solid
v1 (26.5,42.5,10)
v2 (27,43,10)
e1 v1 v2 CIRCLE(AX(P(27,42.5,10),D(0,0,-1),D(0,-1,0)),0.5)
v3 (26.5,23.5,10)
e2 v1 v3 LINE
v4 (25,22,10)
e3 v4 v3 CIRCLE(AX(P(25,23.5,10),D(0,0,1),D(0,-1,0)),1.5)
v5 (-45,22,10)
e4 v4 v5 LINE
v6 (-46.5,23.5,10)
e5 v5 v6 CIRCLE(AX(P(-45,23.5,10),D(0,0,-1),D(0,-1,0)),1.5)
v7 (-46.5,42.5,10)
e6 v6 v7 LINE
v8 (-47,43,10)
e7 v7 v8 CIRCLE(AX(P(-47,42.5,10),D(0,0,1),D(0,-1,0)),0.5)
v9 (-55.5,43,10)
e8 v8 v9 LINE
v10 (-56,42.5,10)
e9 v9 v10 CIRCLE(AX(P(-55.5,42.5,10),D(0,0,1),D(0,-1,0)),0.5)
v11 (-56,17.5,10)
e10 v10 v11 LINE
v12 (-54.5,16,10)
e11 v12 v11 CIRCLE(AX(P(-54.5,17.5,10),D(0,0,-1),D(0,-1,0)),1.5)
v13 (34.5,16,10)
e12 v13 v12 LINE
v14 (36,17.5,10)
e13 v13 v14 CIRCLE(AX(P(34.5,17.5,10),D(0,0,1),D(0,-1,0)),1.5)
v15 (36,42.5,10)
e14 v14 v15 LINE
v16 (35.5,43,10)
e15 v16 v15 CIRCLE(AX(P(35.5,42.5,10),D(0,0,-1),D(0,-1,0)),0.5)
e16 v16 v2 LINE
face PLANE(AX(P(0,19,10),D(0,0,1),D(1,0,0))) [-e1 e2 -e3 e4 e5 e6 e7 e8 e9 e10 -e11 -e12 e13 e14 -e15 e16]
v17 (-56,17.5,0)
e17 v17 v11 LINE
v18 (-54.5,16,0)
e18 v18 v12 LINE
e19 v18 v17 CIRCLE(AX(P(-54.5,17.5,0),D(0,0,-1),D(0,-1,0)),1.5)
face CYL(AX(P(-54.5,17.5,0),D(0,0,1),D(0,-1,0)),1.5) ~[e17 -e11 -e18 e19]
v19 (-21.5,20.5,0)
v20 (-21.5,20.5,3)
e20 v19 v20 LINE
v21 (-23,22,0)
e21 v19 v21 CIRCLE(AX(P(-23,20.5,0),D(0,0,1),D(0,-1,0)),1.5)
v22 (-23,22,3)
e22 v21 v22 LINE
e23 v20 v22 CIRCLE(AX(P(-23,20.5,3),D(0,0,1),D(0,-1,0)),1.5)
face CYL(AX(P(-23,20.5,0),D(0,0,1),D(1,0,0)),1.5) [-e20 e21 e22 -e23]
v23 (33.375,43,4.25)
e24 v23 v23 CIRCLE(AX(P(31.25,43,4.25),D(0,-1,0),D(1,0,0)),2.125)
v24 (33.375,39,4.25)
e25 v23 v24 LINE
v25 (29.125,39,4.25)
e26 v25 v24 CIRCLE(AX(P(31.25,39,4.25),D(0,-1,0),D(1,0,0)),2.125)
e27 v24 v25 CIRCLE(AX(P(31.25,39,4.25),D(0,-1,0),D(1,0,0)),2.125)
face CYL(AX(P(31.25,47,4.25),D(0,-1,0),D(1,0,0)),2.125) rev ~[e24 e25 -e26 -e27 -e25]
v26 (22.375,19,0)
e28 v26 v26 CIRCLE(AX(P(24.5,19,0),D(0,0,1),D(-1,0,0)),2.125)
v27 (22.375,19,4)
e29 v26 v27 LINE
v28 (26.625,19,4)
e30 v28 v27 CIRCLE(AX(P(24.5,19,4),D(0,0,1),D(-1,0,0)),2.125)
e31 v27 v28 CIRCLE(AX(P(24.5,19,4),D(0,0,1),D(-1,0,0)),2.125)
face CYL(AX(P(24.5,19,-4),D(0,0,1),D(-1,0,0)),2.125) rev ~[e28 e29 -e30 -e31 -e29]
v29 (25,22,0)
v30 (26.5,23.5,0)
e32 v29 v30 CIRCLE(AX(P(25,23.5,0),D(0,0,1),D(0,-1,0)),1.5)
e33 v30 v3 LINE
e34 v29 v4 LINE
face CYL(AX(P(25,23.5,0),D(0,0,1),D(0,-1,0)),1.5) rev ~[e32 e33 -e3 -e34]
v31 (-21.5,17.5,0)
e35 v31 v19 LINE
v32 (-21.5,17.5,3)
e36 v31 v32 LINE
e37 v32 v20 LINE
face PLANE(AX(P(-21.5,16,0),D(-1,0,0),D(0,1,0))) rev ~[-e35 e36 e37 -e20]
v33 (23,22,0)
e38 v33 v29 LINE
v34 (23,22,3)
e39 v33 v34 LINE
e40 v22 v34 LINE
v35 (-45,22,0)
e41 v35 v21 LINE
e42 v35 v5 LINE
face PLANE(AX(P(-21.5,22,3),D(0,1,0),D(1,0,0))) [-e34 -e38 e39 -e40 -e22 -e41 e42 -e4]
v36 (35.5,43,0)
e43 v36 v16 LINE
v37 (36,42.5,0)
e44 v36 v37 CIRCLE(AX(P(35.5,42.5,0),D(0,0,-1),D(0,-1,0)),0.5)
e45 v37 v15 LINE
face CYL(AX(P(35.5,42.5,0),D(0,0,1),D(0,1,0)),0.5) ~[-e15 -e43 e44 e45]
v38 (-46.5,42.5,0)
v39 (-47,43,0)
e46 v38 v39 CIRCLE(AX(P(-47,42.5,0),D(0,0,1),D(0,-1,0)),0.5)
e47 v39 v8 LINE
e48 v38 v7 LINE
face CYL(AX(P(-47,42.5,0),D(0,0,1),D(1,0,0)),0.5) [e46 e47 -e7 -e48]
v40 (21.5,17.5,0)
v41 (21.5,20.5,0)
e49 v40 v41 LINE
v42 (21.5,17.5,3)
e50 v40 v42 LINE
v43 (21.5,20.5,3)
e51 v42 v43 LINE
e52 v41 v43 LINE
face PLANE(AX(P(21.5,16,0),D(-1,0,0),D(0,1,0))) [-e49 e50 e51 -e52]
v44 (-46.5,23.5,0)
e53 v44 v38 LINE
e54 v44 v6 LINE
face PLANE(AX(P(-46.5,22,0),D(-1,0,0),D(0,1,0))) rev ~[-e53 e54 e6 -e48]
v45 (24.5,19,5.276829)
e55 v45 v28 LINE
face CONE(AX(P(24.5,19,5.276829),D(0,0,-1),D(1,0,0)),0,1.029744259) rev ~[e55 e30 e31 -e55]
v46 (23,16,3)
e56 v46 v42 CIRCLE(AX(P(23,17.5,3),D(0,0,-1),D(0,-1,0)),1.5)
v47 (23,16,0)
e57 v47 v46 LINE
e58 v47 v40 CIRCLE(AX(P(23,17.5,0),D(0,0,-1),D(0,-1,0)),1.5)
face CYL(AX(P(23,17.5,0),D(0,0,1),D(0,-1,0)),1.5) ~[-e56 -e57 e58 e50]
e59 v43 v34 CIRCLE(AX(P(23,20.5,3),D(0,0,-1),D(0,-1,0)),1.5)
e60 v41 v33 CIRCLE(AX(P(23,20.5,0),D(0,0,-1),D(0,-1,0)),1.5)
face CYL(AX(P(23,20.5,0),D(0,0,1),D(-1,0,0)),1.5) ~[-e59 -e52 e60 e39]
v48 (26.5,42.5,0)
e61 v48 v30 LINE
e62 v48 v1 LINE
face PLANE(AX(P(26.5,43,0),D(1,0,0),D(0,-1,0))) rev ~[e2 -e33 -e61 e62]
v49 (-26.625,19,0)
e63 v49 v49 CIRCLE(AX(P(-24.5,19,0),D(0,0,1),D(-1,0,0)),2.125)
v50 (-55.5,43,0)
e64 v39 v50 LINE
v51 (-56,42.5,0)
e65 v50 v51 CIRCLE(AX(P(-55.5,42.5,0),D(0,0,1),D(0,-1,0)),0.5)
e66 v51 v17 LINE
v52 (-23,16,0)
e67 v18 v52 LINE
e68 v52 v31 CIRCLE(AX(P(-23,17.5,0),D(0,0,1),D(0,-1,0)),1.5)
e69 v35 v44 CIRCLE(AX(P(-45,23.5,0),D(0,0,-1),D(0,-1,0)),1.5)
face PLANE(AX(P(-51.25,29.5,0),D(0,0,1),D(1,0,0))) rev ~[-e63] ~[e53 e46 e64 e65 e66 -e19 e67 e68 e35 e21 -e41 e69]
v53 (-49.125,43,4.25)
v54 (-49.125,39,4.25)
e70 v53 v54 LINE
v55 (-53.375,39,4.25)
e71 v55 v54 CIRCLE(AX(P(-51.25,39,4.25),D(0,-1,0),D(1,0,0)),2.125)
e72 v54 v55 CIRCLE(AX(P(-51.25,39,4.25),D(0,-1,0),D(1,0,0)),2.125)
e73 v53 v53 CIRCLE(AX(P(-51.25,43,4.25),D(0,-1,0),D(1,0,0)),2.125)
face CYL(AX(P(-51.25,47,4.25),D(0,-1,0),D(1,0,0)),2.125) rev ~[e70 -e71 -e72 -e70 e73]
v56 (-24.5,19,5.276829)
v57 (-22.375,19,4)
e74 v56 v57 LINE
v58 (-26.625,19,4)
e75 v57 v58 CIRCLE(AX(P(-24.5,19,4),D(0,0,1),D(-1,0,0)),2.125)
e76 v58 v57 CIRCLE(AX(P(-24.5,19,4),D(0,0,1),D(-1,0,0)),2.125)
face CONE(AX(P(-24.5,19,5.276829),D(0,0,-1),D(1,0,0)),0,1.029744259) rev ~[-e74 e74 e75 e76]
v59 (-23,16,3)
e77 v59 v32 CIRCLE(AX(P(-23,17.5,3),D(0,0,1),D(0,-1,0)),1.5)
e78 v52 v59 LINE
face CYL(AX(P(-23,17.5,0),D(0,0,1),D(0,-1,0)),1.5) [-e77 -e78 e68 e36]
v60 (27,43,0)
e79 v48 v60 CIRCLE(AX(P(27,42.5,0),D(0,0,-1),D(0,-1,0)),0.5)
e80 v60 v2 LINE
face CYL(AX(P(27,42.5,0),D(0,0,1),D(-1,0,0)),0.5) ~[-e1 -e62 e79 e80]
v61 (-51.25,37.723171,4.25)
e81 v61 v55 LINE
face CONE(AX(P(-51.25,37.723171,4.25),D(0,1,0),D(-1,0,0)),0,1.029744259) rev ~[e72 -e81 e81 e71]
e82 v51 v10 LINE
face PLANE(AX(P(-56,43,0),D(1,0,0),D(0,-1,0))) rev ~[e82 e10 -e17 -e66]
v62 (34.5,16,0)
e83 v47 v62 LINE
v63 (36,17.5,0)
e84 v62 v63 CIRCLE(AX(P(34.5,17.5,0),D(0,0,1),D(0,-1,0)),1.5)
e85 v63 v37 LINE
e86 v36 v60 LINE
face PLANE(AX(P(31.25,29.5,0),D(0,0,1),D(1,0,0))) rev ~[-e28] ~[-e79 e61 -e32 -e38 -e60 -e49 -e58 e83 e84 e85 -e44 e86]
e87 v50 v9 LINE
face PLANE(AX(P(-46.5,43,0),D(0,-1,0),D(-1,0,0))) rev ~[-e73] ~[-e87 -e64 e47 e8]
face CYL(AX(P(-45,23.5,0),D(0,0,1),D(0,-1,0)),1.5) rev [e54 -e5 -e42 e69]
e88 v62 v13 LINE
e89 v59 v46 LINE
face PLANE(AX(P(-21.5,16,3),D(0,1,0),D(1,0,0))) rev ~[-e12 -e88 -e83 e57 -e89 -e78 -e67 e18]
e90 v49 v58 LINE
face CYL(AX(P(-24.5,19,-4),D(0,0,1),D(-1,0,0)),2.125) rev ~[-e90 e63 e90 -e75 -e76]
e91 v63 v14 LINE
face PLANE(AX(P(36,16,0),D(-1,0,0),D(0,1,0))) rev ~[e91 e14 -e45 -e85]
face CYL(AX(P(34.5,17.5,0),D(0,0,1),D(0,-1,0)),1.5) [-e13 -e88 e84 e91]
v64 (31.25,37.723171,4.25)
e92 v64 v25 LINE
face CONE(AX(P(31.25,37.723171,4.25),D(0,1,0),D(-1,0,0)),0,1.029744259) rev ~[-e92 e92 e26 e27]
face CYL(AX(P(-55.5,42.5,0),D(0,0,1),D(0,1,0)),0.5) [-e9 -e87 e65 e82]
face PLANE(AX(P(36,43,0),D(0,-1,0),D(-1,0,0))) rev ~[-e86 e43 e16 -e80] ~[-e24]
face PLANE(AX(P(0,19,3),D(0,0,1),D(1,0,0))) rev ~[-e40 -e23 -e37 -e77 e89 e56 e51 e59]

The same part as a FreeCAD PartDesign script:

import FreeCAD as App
import Part
import Sketcher

V = App.Vector
Q = App.Units.Quantity


def edges_at(feature, points):
    """Names of the edges that pass closest to the given points."""
    edges = feature.Shape.Edges
    near = lambda p: min(range(len(edges)), key=lambda i: edges[i].distToShape(Part.Vertex(*p))[0])
    return sorted({f"Edge{near(p) + 1}" for p in points})


def add_polygon(sketch, points):
    """Adds a closed chain of lines whose ends are joined by coincident constraints."""
    first, n = sketch.GeometryCount, len(points)
    for a, b in zip(points, points[1:] + points[:1]):
        sketch.addGeometry(Part.LineSegment(App.Vector(*a, 0), App.Vector(*b, 0)), False)
    for i in range(n):
        sketch.addConstraint(Sketcher.Constraint("Coincident", first + i, 2, first + (i + 1) % n, 1))

doc = App.newDocument("Part")
body = doc.addObject("PartDesign::Body", "Body")

# Sketch on XY plane
sketch1 = body.newObject("Sketcher::SketchObject", "Sketch")
sketch1.AttachmentSupport = (doc.getObject("XY_Plane"), [""])
sketch1.MapMode = "FlatFace"
add_polygon(sketch1, [(36, 43), (26, 43), (26, 22), (22, 22), (22, 16), (36, 16)])  # lines 0-5
sketch1.addConstraint([
    Sketcher.Constraint("Horizontal", 0),
    Sketcher.Constraint("Vertical", 1),
    Sketcher.Constraint("Horizontal", 2),
    Sketcher.Constraint("Vertical", 3),
    Sketcher.Constraint("Horizontal", 4),
    Sketcher.Constraint("Vertical", 5),
    Sketcher.Constraint("DistanceX", 2, 2, 2, 1, Q("5 mm")),
    Sketcher.Constraint("DistanceY", 1, 2, 1, 1, Q("21 mm")),
    Sketcher.Constraint("DistanceY", 3, 2, 3, 1, Q("6 mm")),
    Sketcher.Constraint("DistanceX", 0, 2, 0, 1, Q("9.5 mm")),
    Sketcher.Constraint("DistanceY", -1, 1, 0, 2, Q("43 mm")),
    Sketcher.Constraint("DistanceX", -1, 1, 4, 2, Q("36 mm")),
])
pad1 = body.newObject("PartDesign::Pad", "Pad")
pad1.Profile = sketch1
pad1.Length = 10
body2 = doc.addObject("PartDesign::Body", "Body001")

# Sketch on XY plane
sketch2 = body2.newObject("Sketcher::SketchObject", "Sketch001")
sketch2.AttachmentSupport = (doc.getObject("XY_Plane001"), [""])
sketch2.MapMode = "FlatFace"
add_polygon(sketch2, [(-46, 22), (-46, 43), (-56, 43), (-56, 16), (-22, 16), (-22, 22)])  # lines 0-5
sketch2.addConstraint([
    Sketcher.Constraint("Vertical", 0),
    Sketcher.Constraint("Horizontal", 1),
    Sketcher.Constraint("Vertical", 2),
    Sketcher.Constraint("Horizontal", 3),
    Sketcher.Constraint("Vertical", 4),
    Sketcher.Constraint("Horizontal", 5),
    Sketcher.Constraint("DistanceX", 5, 2, 5, 1, Q("25 mm")),
    Sketcher.Constraint("DistanceY", 0, 1, 0, 2, Q("21 mm")),
    Sketcher.Constraint("DistanceY", 2, 2, 2, 1, Q("27 mm")),
    Sketcher.Constraint("DistanceX", 1, 2, 1, 1, Q("9.5 mm")),
    Sketcher.Constraint("DistanceY", -1, 1, 0, 2, Q("43 mm")),
    Sketcher.Constraint("DistanceX", 1, 2, -1, 1, Q("56 mm")),
])
pad2 = body2.newObject("PartDesign::Pad", "Pad001")
pad2.Profile = sketch2
pad2.Length = 10
body.AllowCompound = True
doc.recompute()

boolean = body.newObject("PartDesign::Boolean", "Boolean")
boolean.Type = "Fuse"
boolean.addObjects([body2])

# Sketch on XY plane
sketch3 = body.newObject("Sketcher::SketchObject", "Sketch002")
sketch3.AttachmentSupport = (doc.getObject("XY_Plane"), [""])
sketch3.MapMode = "FlatFace"
sketch3.AttachmentOffset = App.Placement(V(0, 0, 3), App.Rotation())
add_polygon(sketch3, [(-22, 22), (-22, 16), (22, 16), (22, 22)])  # lines 0-3
sketch3.addConstraint([
    Sketcher.Constraint("Vertical", 0),
    Sketcher.Constraint("Horizontal", 1),
    Sketcher.Constraint("Vertical", 2),
    Sketcher.Constraint("Horizontal", 3),
    Sketcher.Constraint("DistanceX", 1, 1, 1, 2, Q("43 mm")),
    Sketcher.Constraint("DistanceY", 0, 2, 0, 1, Q("6 mm")),
    Sketcher.Constraint("DistanceY", -1, 1, 0, 2, Q("16 mm")),
    Sketcher.Constraint("DistanceX", 0, 2, -1, 1, Q("21.5 mm")),
])
pad3 = body.newObject("PartDesign::Pad", "Pad002")
pad3.Profile = sketch3
pad3.Length = 7

# Sketch on XZ plane
sketch4 = body.newObject("Sketcher::SketchObject", "Sketch003")
sketch4.AttachmentSupport = (doc.getObject("XZ_Plane"), [""])
sketch4.MapMode = "FlatFace"
sketch4.AttachmentOffset = App.Placement(V(0, 0, -43), App.Rotation())
sketch4.addGeometry([
    Part.Circle(V(31.2, 4.2, 0), V(0, 0, 1), 2.1),
    Part.Circle(V(-51.2, 4.2, 0), V(0, 0, 1), 2.1),
], False)
sketch4.addConstraint([
    Sketcher.Constraint("Equal", 0, 1),
    Sketcher.Constraint("Horizontal", 0, 3, 1, 3),
    Sketcher.Constraint("Diameter", 0, Q("4.25 mm")),
    Sketcher.Constraint("DistanceX", 1, 3, 0, 3, Q("82.5 mm")),
    Sketcher.Constraint("DistanceX", -1, 1, 0, 3, Q("31.25 mm")),
    Sketcher.Constraint("DistanceY", -1, 1, 0, 3, Q("4.25 mm")),
])
doc.recompute()
hole = body.newObject("PartDesign::Hole", "Hole")
hole.Profile = sketch4
hole.ThreadType = "None"
hole.Diameter = 4.25
hole.DepthType = "Dimension"
hole.Depth = 4
hole.DrillPoint = "Angled"
hole.DrillPointAngle = 118
hole.Reversed = True

# Sketch on XY plane
sketch5 = body.newObject("Sketcher::SketchObject", "Sketch004")
sketch5.AttachmentSupport = (doc.getObject("XY_Plane"), [""])
sketch5.MapMode = "FlatFace"
sketch5.addGeometry([
    Part.Circle(V(24.5, 19, 0), V(0, 0, 1), 2.1),
    Part.Circle(V(-24.5, 19, 0), V(0, 0, 1), 2.1),
], False)
sketch5.addConstraint([
    Sketcher.Constraint("Equal", 0, 1),
    Sketcher.Constraint("Symmetric", 0, 3, 1, 3, -2),
    Sketcher.Constraint("Diameter", 0, Q("4.25 mm")),
    Sketcher.Constraint("DistanceY", -1, 1, 0, 3, Q("19 mm")),
    Sketcher.Constraint("DistanceX", 1, 3, 0, 3, Q("49 mm")),
])
doc.recompute()
hole2 = body.newObject("PartDesign::Hole", "Hole001")
hole2.Profile = sketch5
hole2.ThreadType = "None"
hole2.Diameter = 4.25
hole2.DepthType = "Dimension"
hole2.Depth = 4
hole2.DrillPoint = "Angled"
hole2.DrillPointAngle = 118
hole2.Reversed = True
doc.recompute()

fillet = body.newObject("PartDesign::Fillet", "Fillet")
fillet.Base = (hole2, edges_at(hole2, [
    (26.5, 22, 5),
    (-46.5, 22, 5),
    (36, 16, 5),
    (-56, 16, 5),
    (21.5, 22, 1.5),
    (21.5, 16, 1.5),
    (-21.5, 22, 1.5),
    (-21.5, 16, 1.5),
]))
fillet.Radius = 1.5
doc.recompute()

fillet2 = body.newObject("PartDesign::Fillet", "Fillet001")
fillet2.Base = (fillet, edges_at(fillet, [
    (36, 43, 5),
    (26.5, 43, 5),
    (-46.5, 43, 5),
    (-56, 43, 5),
]))
fillet2.Radius = 0.5

doc.recompute()
